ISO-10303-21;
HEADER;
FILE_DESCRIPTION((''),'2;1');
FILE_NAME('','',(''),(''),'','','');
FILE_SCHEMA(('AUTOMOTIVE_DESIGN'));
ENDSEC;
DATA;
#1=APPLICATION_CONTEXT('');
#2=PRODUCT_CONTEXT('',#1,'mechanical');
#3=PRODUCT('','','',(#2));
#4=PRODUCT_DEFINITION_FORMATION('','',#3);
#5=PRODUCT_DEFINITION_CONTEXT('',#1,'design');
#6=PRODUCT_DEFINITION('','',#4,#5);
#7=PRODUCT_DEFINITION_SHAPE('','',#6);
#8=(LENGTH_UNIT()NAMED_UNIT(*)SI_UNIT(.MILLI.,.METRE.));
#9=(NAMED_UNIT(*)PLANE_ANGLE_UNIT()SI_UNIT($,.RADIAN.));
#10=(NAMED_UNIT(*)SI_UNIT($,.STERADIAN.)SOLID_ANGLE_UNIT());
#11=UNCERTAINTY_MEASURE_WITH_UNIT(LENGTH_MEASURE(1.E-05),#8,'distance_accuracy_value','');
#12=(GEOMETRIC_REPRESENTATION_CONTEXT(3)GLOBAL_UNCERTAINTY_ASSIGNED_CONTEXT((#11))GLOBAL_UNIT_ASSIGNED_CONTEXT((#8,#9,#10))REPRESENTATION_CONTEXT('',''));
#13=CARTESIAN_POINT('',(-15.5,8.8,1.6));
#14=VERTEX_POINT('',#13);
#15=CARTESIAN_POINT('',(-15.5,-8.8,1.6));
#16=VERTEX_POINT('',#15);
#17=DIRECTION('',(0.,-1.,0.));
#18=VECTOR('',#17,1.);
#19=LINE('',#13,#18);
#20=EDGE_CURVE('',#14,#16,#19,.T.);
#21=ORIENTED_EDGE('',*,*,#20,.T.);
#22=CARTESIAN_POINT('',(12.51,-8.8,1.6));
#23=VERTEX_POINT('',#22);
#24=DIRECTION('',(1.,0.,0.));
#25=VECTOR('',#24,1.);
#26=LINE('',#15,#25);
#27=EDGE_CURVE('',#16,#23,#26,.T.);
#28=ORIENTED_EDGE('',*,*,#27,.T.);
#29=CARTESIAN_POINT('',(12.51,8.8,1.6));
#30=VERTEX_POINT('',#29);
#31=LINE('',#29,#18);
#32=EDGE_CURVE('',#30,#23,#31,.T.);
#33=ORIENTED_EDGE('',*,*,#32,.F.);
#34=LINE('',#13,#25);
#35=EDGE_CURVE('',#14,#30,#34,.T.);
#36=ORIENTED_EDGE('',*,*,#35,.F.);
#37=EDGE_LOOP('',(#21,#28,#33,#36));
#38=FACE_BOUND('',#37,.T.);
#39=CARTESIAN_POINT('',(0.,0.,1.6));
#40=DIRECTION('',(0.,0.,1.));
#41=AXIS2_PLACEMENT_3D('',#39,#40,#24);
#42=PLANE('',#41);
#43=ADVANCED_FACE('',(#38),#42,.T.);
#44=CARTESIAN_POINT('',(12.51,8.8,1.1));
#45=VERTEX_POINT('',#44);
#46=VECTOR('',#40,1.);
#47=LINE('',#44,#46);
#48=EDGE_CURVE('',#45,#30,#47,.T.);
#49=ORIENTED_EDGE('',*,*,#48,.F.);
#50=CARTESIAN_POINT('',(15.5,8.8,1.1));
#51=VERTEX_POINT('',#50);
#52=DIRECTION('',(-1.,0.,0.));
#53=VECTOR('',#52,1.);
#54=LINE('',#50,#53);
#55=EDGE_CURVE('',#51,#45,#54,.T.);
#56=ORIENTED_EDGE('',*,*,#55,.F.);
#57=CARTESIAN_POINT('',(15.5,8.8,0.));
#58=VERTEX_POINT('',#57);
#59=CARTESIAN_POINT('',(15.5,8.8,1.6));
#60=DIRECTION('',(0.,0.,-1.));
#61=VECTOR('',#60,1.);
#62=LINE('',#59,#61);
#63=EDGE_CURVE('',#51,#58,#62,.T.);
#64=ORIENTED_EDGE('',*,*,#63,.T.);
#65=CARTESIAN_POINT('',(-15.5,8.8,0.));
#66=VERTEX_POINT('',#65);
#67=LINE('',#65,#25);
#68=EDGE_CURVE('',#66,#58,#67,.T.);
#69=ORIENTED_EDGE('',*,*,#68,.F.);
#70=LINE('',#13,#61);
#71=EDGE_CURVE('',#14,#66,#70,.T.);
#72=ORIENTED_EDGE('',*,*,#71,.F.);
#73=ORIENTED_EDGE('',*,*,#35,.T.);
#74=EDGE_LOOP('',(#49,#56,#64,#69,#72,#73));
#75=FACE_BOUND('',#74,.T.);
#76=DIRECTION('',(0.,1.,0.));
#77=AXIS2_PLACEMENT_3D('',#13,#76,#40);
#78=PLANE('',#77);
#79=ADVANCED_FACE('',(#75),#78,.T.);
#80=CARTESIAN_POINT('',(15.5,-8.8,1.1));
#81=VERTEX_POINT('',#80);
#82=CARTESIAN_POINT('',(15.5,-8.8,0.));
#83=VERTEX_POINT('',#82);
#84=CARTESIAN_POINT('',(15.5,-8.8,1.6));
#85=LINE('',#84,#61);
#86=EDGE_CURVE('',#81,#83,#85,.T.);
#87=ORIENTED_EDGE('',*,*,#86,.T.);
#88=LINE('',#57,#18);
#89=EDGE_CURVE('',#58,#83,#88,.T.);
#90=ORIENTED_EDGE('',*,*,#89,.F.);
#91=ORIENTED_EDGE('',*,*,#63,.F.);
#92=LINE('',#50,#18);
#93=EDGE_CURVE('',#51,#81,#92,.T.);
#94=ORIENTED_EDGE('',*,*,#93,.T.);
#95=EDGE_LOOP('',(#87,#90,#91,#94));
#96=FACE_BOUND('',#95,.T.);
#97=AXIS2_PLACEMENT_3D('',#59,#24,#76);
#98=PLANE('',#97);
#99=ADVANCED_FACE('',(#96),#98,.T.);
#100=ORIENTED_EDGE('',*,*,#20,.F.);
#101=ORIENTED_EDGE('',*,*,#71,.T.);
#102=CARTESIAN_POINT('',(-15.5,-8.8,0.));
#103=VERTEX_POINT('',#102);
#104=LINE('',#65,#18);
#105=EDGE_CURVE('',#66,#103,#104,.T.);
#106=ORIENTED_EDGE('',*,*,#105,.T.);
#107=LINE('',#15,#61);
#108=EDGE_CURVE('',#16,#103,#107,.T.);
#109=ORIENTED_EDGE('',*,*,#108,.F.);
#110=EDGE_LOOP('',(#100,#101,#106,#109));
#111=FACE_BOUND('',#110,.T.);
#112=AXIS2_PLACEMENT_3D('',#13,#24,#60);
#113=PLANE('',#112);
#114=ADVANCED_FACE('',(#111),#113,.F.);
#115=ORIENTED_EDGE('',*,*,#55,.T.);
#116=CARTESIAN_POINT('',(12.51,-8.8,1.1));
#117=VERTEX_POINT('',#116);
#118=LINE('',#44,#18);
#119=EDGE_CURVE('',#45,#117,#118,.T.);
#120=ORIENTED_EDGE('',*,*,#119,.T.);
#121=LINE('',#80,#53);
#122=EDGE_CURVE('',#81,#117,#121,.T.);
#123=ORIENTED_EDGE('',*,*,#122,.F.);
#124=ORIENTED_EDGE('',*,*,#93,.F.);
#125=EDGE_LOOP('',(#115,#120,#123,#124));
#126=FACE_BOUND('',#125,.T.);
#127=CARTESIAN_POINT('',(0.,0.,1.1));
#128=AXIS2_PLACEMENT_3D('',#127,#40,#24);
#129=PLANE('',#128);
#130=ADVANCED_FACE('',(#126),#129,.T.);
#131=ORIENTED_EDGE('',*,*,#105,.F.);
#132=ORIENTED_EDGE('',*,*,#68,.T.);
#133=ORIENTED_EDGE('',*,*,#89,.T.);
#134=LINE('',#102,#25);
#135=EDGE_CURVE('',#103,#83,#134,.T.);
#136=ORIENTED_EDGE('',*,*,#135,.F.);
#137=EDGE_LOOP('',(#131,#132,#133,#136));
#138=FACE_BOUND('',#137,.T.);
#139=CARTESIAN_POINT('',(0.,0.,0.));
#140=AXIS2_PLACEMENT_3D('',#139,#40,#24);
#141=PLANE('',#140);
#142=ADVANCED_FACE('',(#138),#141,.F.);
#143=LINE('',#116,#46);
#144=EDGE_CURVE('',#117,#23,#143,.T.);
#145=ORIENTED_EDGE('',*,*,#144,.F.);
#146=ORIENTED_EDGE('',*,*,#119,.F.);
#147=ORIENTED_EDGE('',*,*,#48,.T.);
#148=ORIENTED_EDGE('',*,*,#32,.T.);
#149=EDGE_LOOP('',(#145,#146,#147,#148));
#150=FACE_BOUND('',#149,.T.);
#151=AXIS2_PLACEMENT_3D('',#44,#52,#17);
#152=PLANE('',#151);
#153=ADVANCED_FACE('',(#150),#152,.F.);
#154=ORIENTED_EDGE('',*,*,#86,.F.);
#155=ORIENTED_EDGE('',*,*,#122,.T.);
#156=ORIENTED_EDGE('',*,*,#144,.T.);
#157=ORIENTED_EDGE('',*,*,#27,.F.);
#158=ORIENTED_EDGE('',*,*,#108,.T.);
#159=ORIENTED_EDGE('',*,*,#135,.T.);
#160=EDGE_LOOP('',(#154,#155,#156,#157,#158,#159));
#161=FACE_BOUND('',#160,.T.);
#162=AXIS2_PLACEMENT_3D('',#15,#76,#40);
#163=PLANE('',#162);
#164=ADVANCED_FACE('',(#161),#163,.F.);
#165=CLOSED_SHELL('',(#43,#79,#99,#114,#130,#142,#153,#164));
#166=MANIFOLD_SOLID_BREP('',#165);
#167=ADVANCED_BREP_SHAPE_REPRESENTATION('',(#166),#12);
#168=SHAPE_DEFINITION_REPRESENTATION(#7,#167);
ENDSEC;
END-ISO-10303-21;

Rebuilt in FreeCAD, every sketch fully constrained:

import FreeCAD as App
import Part
import Sketcher
Q = App.Units.Quantity

doc = App.newDocument("Part")
params = doc.addObject("Spreadsheet::Sheet", "Params")
for row, (alias, value) in enumerate([
    ("sketch1_width", "31 mm"),
    ("sketch1_height", "17.6 mm"),
    ("pad1_length", "1.6 mm"),
    ("sketch2_height", "17.6 mm"),
    ("sketch2_width", "2.99 mm"),
    ("pocket1_length", "0.5 mm"),
], start=1):
    params.set(f"A{row}", alias)
    params.set(f"B{row}", "=" + value)
    params.setAlias(f"B{row}", alias)

body = doc.addObject("PartDesign::Body", "Body")

sketch1 = body.newObject("Sketcher::SketchObject", "Sketch")
sketch1.AttachmentSupport = (doc.getObject("XY_Plane"), [""])
sketch1.MapMode = "FlatFace"
sketch1.addGeometry(Part.LineSegment(App.Vector(-16, 9, 0), App.Vector(-16, -9, 0)), False)
sketch1.addGeometry(Part.LineSegment(App.Vector(-16, -9, 0), App.Vector(16, -9, 0)), False)
sketch1.addGeometry(Part.LineSegment(App.Vector(16, -9, 0), App.Vector(16, 9, 0)), False)
sketch1.addGeometry(Part.LineSegment(App.Vector(16, 9, 0), App.Vector(-16, 9, 0)), False)
sketch1.addConstraint(Sketcher.Constraint("Coincident", 0, 2, 1, 1))
sketch1.addConstraint(Sketcher.Constraint("Coincident", 1, 2, 2, 1))
sketch1.addConstraint(Sketcher.Constraint("Coincident", 2, 2, 3, 1))
sketch1.addConstraint(Sketcher.Constraint("Coincident", 3, 2, 0, 1))
sketch1.addConstraint(Sketcher.Constraint("Vertical", 0))
sketch1.addConstraint(Sketcher.Constraint("Horizontal", 1))
sketch1.addConstraint(Sketcher.Constraint("Vertical", 2))
sketch1.addConstraint(Sketcher.Constraint("Horizontal", 3))
sketch1.addConstraint(Sketcher.Constraint("Symmetric", 0, 2, 2, 2, -1, 1))
sketch1.addConstraint(Sketcher.Constraint("DistanceX", 1, 1, 1, 2, Q("31 mm")))
sketch1.addConstraint(Sketcher.Constraint("DistanceY", 0, 2, 0, 1, Q("17.6 mm")))
sketch1.setExpression("Constraints[9]", "Params.sketch1_width")
sketch1.setExpression("Constraints[10]", "Params.sketch1_height")
pad1 = body.newObject("PartDesign::Pad", "Pad")
pad1.Profile = sketch1
pad1.setExpression("Length", "Params.pad1_length")

sketch2 = body.newObject("Sketcher::SketchObject", "Sketch001")
sketch2.AttachmentSupport = (doc.getObject("XY_Plane"), [""])
sketch2.MapMode = "FlatFace"
sketch2.AttachmentOffset = App.Placement(App.Vector(0, 0, 1.6), App.Rotation())
sketch2.addGeometry(Part.LineSegment(App.Vector(12.5, 8.8, 0), App.Vector(12.5, -8.8, 0)), False)
sketch2.addGeometry(Part.LineSegment(App.Vector(12.5, -8.8, 0), App.Vector(15.5, -8.8, 0)), False)
sketch2.addGeometry(Part.LineSegment(App.Vector(15.5, -8.8, 0), App.Vector(15.5, 8.8, 0)), False)
sketch2.addGeometry(Part.LineSegment(App.Vector(15.5, 8.8, 0), App.Vector(12.5, 8.8, 0)), False)
sketch2.addConstraint(Sketcher.Constraint("Coincident", 0, 2, 1, 1))
sketch2.addConstraint(Sketcher.Constraint("Coincident", 1, 2, 2, 1))
sketch2.addConstraint(Sketcher.Constraint("Coincident", 2, 2, 3, 1))
sketch2.addConstraint(Sketcher.Constraint("Coincident", 3, 2, 0, 1))
sketch2.addConstraint(Sketcher.Constraint("Vertical", 0))
sketch2.addConstraint(Sketcher.Constraint("Horizontal", 1))
sketch2.addConstraint(Sketcher.Constraint("Vertical", 2))
sketch2.addConstraint(Sketcher.Constraint("Horizontal", 3))
sketch2.addConstraint(Sketcher.Constraint("DistanceY", 0, 2, 0, 1, Q("17.6 mm")))
sketch2.addConstraint(Sketcher.Constraint("DistanceX", 1, 1, 1, 2, Q("2.99 mm")))
sketch2.addConstraint(Sketcher.Constraint("DistanceY", 0, 2, -1, 1, Q("8.8 mm")))
sketch2.addConstraint(Sketcher.Constraint("DistanceX", -1, 1, 1, 2, Q("15.5 mm")))
sketch2.setExpression("Constraints[8]", "Params.sketch2_height")
sketch2.setExpression("Constraints[9]", "Params.sketch2_width")
pocket1 = body.newObject("PartDesign::Pocket", "Pocket")
pocket1.Profile = sketch2
pocket1.setExpression("Length", "Params.pocket1_length")

doc.recompute()
